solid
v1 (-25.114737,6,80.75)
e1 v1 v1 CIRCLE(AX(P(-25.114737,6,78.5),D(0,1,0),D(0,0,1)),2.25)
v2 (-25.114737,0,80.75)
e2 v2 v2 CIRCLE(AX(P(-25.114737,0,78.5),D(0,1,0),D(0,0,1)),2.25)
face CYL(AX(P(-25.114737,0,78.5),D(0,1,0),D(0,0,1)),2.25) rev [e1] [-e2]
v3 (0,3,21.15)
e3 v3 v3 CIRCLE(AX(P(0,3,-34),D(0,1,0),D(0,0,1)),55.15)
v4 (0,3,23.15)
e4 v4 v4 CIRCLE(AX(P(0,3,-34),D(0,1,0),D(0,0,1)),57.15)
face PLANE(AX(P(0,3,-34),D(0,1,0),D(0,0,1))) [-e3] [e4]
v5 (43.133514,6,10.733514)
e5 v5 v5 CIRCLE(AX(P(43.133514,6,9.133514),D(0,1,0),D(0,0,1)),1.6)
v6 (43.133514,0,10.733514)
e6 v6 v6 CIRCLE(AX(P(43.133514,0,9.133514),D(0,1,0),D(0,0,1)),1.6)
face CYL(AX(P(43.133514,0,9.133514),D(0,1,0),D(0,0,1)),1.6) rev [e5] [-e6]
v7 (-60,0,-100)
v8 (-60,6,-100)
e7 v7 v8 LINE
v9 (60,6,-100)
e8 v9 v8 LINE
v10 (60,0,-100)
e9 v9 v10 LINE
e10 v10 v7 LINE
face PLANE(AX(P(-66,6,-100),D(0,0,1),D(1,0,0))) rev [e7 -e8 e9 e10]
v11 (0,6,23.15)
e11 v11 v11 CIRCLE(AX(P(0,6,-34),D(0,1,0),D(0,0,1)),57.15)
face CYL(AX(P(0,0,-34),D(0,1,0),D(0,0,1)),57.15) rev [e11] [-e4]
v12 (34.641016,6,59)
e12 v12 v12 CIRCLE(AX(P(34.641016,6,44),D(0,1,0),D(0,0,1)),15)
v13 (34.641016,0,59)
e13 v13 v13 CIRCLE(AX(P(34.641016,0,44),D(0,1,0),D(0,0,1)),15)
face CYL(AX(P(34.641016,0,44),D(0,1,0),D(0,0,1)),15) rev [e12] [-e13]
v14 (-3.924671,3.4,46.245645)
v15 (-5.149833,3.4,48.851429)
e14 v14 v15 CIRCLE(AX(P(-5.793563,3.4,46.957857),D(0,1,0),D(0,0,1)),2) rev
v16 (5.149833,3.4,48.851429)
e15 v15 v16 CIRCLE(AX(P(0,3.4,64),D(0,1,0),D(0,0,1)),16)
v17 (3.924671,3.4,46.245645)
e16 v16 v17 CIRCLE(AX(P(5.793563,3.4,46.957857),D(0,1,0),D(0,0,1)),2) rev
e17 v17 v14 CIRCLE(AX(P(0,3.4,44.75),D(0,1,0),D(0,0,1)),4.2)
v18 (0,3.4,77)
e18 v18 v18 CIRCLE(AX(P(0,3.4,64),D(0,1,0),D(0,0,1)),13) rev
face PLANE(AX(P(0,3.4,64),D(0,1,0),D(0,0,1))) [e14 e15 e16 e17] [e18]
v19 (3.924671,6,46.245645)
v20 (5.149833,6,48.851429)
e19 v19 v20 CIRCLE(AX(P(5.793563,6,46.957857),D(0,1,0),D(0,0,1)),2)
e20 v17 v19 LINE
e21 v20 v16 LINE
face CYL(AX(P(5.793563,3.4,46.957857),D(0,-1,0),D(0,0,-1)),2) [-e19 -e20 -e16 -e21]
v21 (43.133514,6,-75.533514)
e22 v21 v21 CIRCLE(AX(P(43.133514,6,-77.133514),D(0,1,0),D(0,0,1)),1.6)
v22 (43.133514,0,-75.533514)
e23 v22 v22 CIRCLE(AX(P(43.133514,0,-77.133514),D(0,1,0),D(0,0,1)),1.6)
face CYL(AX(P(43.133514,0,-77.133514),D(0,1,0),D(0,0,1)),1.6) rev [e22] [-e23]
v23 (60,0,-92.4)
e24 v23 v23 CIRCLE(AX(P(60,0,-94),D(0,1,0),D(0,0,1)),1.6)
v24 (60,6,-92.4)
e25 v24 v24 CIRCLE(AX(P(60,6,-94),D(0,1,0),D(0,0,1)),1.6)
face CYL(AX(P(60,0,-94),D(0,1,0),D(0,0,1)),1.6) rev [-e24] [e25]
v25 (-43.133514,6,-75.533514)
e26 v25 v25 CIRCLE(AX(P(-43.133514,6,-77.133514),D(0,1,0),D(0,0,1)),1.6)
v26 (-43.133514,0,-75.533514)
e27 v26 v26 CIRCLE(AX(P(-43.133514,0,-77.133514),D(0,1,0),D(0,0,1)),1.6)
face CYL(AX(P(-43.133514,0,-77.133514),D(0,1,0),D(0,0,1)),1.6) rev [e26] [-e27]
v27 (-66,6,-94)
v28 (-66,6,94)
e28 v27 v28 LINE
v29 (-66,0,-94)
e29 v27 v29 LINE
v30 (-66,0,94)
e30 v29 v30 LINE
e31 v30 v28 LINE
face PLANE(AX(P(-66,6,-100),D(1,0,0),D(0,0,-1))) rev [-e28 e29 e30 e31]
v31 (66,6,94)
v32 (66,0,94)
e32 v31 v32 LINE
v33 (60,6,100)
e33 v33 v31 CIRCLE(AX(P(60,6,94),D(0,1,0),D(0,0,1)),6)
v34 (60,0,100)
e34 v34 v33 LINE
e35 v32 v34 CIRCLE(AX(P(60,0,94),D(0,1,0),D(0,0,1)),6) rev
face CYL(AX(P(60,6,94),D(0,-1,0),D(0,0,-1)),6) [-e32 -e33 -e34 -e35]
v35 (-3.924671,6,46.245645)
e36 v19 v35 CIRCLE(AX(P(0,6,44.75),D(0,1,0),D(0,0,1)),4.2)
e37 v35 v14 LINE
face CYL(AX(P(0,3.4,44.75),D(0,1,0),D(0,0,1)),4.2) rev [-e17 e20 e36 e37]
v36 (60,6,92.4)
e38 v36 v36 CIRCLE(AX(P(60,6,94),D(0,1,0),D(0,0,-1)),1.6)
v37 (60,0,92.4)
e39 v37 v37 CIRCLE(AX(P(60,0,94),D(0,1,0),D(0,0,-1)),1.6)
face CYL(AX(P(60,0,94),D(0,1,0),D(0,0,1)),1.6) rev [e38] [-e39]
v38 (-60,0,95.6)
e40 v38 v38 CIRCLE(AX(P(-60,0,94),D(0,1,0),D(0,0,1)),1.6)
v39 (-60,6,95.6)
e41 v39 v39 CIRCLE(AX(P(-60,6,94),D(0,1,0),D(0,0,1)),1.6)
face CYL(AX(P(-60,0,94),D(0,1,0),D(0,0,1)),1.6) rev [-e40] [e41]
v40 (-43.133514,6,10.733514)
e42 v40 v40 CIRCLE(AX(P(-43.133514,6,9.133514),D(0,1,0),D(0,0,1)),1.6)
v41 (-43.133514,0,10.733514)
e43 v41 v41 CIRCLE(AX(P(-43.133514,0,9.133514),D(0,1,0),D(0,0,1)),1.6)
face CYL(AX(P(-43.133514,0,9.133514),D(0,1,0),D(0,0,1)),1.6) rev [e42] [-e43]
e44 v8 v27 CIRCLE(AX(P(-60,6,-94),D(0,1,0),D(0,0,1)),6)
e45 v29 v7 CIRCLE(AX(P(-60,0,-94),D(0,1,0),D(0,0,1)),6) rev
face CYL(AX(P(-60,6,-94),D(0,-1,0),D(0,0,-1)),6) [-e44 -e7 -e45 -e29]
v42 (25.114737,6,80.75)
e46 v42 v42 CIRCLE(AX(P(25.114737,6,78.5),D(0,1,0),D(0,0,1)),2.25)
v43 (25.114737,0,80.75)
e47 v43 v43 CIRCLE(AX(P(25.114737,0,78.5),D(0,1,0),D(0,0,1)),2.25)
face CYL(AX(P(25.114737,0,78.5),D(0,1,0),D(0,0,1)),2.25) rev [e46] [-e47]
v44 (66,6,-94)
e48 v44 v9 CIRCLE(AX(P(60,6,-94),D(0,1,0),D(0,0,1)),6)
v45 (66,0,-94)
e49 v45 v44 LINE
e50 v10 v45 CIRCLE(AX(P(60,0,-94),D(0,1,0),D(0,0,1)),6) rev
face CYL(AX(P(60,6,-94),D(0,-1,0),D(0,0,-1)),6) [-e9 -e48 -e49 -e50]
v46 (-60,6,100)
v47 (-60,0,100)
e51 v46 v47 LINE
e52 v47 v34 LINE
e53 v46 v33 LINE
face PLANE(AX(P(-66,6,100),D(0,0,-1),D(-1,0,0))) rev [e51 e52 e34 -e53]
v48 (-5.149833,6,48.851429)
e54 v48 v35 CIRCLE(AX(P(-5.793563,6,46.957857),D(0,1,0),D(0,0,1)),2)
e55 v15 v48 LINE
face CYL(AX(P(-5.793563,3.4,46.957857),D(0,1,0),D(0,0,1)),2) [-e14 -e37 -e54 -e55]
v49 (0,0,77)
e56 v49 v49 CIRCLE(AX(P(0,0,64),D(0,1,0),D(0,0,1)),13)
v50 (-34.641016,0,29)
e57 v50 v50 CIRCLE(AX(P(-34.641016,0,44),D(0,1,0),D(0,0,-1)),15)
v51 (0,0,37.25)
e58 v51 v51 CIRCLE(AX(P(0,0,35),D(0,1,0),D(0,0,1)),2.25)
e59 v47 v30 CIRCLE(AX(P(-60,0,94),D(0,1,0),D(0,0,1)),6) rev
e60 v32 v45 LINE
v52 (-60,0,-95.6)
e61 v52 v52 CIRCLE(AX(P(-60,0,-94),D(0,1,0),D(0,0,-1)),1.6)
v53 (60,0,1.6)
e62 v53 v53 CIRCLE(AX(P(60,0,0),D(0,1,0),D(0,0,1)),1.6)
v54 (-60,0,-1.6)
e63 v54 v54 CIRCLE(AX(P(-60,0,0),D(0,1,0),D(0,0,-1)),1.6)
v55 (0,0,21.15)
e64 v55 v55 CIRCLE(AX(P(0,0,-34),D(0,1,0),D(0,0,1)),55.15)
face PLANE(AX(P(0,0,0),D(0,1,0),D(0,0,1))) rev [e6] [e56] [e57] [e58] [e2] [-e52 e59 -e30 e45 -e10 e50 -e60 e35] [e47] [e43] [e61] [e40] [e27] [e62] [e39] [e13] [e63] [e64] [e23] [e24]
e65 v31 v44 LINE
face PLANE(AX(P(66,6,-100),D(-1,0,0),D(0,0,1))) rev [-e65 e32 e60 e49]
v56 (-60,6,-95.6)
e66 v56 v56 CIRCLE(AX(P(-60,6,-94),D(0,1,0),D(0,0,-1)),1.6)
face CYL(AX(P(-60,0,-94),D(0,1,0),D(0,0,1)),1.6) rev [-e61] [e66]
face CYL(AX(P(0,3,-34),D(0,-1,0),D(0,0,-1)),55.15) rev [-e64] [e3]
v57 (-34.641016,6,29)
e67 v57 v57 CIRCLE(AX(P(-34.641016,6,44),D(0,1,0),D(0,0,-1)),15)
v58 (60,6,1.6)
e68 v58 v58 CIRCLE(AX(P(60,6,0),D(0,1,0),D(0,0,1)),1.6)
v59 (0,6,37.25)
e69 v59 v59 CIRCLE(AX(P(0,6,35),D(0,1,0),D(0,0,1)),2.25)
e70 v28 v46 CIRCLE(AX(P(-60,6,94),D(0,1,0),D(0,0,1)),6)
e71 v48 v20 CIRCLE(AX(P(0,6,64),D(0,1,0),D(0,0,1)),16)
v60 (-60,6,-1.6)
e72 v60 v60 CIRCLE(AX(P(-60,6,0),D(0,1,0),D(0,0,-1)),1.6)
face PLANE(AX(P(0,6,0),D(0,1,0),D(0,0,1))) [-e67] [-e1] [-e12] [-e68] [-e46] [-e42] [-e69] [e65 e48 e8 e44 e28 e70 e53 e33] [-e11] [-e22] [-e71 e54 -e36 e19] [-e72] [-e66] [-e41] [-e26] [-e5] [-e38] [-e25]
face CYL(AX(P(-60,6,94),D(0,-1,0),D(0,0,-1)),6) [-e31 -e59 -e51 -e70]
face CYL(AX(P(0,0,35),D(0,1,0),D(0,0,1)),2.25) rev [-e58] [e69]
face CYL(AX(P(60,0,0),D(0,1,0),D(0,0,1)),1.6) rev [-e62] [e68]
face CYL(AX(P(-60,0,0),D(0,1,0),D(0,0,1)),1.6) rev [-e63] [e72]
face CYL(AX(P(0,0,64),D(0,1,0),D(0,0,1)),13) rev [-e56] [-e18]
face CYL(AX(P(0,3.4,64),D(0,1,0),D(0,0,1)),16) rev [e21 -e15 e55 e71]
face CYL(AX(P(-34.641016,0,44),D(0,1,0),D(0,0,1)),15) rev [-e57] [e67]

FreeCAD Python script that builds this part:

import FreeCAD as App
import Part
import Sketcher

V = App.Vector
Q = App.Units.Quantity


def edges_at(feature, points):
    """Names of the edges that pass closest to the given points."""
    edges = feature.Shape.Edges
    near = lambda p: min(range(len(edges)), key=lambda i: edges[i].distToShape(Part.Vertex(*p))[0])
    return sorted({f"Edge{near(p) + 1}" for p in points})


def add_polygon(sketch, points):
    """Adds a closed chain of lines whose ends are joined by coincident constraints."""
    first, n = sketch.GeometryCount, len(points)
    for a, b in zip(points, points[1:] + points[:1]):
        sketch.addGeometry(Part.LineSegment(App.Vector(*a, 0), App.Vector(*b, 0)), False)
    for i in range(n):
        sketch.addConstraint(Sketcher.Constraint("Coincident", first + i, 2, first + (i + 1) % n, 1))

doc = App.newDocument("Part")
body = doc.addObject("PartDesign::Body", "Body")

# Sketch on XZ plane
sketch1 = body.newObject("Sketcher::SketchObject", "Sketch")
sketch1.AttachmentSupport = (doc.getObject("XZ_Plane"), [""])
sketch1.MapMode = "FlatFace"
add_polygon(sketch1, [(-66, -100), (-66, 100), (66, 100), (66, -100)])  # lines 0-3
sketch1.addConstraint(Sketcher.Constraint("Vertical", 0))
sketch1.addConstraint(Sketcher.Constraint("Horizontal", 1))
sketch1.addConstraint(Sketcher.Constraint("Vertical", 2))
sketch1.addConstraint(Sketcher.Constraint("Horizontal", 3))
sketch1.addConstraint(Sketcher.Constraint("Symmetric", 0, 2, 2, 2, -1, 1))
sketch1.addConstraint(Sketcher.Constraint("DistanceX", 1, 1, 1, 2, Q("132 mm")))
sketch1.addConstraint(Sketcher.Constraint("DistanceY", 0, 1, 0, 2, Q("200 mm")))
pad1 = body.newObject("PartDesign::Pad", "Pad")
pad1.Profile = sketch1
pad1.Length = 6
pad1.Reversed = True

# Sketch on XZ plane
sketch2 = body.newObject("Sketcher::SketchObject", "Sketch001")
sketch2.AttachmentSupport = (doc.getObject("XZ_Plane"), [""])
sketch2.MapMode = "FlatFace"
sketch2.AttachmentOffset = App.Placement(V(0, 0, -6), App.Rotation())
sketch2.addGeometry(Part.Circle(V(0, -34, 0), V(0, 0, 1), 57), False)
sketch2.addConstraint(Sketcher.Constraint("PointOnObject", 0, 3, -2))
sketch2.addConstraint(Sketcher.Constraint("Diameter", 0, Q("114.3 mm")))
sketch2.addConstraint(Sketcher.Constraint("DistanceY", 0, 3, -1, 1, Q("34 mm")))
pocket1 = body.newObject("PartDesign::Pocket", "Pocket")
pocket1.Profile = sketch2
pocket1.Length = 6
pocket1.Reversed = True

# Sketch on XZ plane
sketch3 = body.newObject("Sketcher::SketchObject", "Sketch002")
sketch3.AttachmentSupport = (doc.getObject("XZ_Plane"), [""])
sketch3.MapMode = "FlatFace"
sketch3.AttachmentOffset = App.Placement(V(0, 0, -3), App.Rotation())
sketch3.addGeometry(Part.Circle(V(0, -34, 0), V(0, 0, 1), 57), False)
sketch3.addGeometry(Part.Circle(V(0, -34, 0), V(0, 0, 1), 55), False)
sketch3.addConstraint(Sketcher.Constraint("Coincident", 1, 3, 0, 3))
sketch3.addConstraint(Sketcher.Constraint("PointOnObject", 0, 3, -2))
sketch3.addConstraint(Sketcher.Constraint("Diameter", 0, Q("114.3 mm")))
sketch3.addConstraint(Sketcher.Constraint("Diameter", 1, Q("110.3 mm")))
sketch3.addConstraint(Sketcher.Constraint("DistanceY", 0, 3, -1, 1, Q("34 mm")))
pad2 = body.newObject("PartDesign::Pad", "Pad001")
pad2.Profile = sketch3
pad2.Length = 3

# Sketch on XZ plane
sketch4 = body.newObject("Sketcher::SketchObject", "Sketch003")
sketch4.AttachmentSupport = (doc.getObject("XZ_Plane"), [""])
sketch4.MapMode = "FlatFace"
sketch4.AttachmentOffset = App.Placement(V(0, 0, -6), App.Rotation())
sketch4.addGeometry(Part.Circle(V(43.1, 9.1, 0), V(0, 0, 1), 1.6), False)
sketch4.addGeometry(Part.Circle(V(-43.1, 9.1, 0), V(0, 0, 1), 1.6), False)
sketch4.addGeometry(Part.Circle(V(-43.1, -77.1, 0), V(0, 0, 1), 1.6), False)
sketch4.addGeometry(Part.Circle(V(43.1, -77.1, 0), V(0, 0, 1), 1.6), False)
sketch4.addConstraint(Sketcher.Constraint("Equal", 0, 1))
sketch4.addConstraint(Sketcher.Constraint("Equal", 1, 2))
sketch4.addConstraint(Sketcher.Constraint("Equal", 2, 3))
sketch4.addConstraint(Sketcher.Constraint("Symmetric", 0, 3, 1, 3, -2))
sketch4.addConstraint(Sketcher.Constraint("Symmetric", 2, 3, 3, 3, -2))
sketch4.addConstraint(Sketcher.Constraint("Vertical", 1, 3, 2, 3))
sketch4.addConstraint(Sketcher.Constraint("Diameter", 0, Q("3.2 mm")))
sketch4.addConstraint(Sketcher.Constraint("DistanceX", -1, 1, 0, 3, Q("43.133514 mm")))
sketch4.addConstraint(Sketcher.Constraint("DistanceY", -1, 1, 0, 3, Q("9.133514 mm")))
sketch4.addConstraint(Sketcher.Constraint("DistanceY", 2, 3, -1, 1, Q("77.133514 mm")))
pocket2 = body.newObject("PartDesign::Pocket", "Pocket001")
pocket2.Profile = sketch4
pocket2.Length = 6
pocket2.Reversed = True

# Sketch on XZ plane
sketch5 = body.newObject("Sketcher::SketchObject", "Sketch004")
sketch5.AttachmentSupport = (doc.getObject("XZ_Plane"), [""])
sketch5.MapMode = "FlatFace"
sketch5.AttachmentOffset = App.Placement(V(0, 0, -6), App.Rotation())
sketch5.addGeometry(Part.Circle(V(0, 64, 0), V(0, 0, 1), 13), False)
sketch5.addConstraint(Sketcher.Constraint("PointOnObject", 0, 3, -2))
sketch5.addConstraint(Sketcher.Constraint("Diameter", 0, Q("26 mm")))
sketch5.addConstraint(Sketcher.Constraint("DistanceY", -1, 1, 0, 3, Q("64 mm")))
pocket3 = body.newObject("PartDesign::Pocket", "Pocket002")
pocket3.Profile = sketch5
pocket3.Length = 6
pocket3.Reversed = True

# Sketch on XZ plane
sketch6 = body.newObject("Sketcher::SketchObject", "Sketch005")
sketch6.AttachmentSupport = (doc.getObject("XZ_Plane"), [""])
sketch6.MapMode = "FlatFace"
sketch6.AttachmentOffset = App.Placement(V(0, 0, -6), App.Rotation())
sketch6.addGeometry(Part.Circle(V(0, 64, 0), V(0, 0, 1), 16), False)
sketch6.addConstraint(Sketcher.Constraint("PointOnObject", 0, 3, -2))
sketch6.addConstraint(Sketcher.Constraint("Diameter", 0, Q("32 mm")))
sketch6.addConstraint(Sketcher.Constraint("DistanceY", -1, 1, 0, 3, Q("64 mm")))
pocket4 = body.newObject("PartDesign::Pocket", "Pocket003")
pocket4.Profile = sketch6
pocket4.Length = 2.6
pocket4.Reversed = True

# Sketch on XZ plane
sketch7 = body.newObject("Sketcher::SketchObject", "Sketch006")
sketch7.AttachmentSupport = (doc.getObject("XZ_Plane"), [""])
sketch7.MapMode = "FlatFace"
sketch7.AttachmentOffset = App.Placement(V(0, 0, -6), App.Rotation())
sketch7.addGeometry(Part.Circle(V(0, 44.8, 0), V(0, 0, 1), 4.2), False)
sketch7.addConstraint(Sketcher.Constraint("PointOnObject", 0, 3, -2))
sketch7.addConstraint(Sketcher.Constraint("Diameter", 0, Q("8.4 mm")))
sketch7.addConstraint(Sketcher.Constraint("DistanceY", -1, 1, 0, 3, Q("44.75 mm")))
pocket5 = body.newObject("PartDesign::Pocket", "Pocket004")
pocket5.Profile = sketch7
pocket5.Length = 2.6
pocket5.Reversed = True
doc.recompute()

fillet = body.newObject("PartDesign::Fillet", "Fillet")
fillet.Base = (pocket5, edges_at(pocket5, [(2.418, 4.7, 48.184), (-2.418, 4.7, 48.184)]))
fillet.Radius = 2

# Sketch on XZ plane
sketch8 = body.newObject("Sketcher::SketchObject", "Sketch007")
sketch8.AttachmentSupport = (doc.getObject("XZ_Plane"), [""])
sketch8.MapMode = "FlatFace"
sketch8.AttachmentOffset = App.Placement(V(0, 0, -6), App.Rotation())
sketch8.addGeometry(Part.Circle(V(0, 35, 0), V(0, 0, 1), 2.2), False)
sketch8.addGeometry(Part.Circle(V(25.1, 78.5, 0), V(0, 0, 1), 2.2), False)
sketch8.addGeometry(Part.Circle(V(-25.1, 78.5, 0), V(0, 0, 1), 2.2), False)
sketch8.addConstraint(Sketcher.Constraint("Equal", 0, 1))
sketch8.addConstraint(Sketcher.Constraint("Equal", 1, 2))
sketch8.addConstraint(Sketcher.Constraint("Symmetric", 1, 3, 2, 3, -2))
sketch8.addConstraint(Sketcher.Constraint("PointOnObject", 0, 3, -2))
sketch8.addConstraint(Sketcher.Constraint("Diameter", 0, Q("4.5 mm")))
sketch8.addConstraint(Sketcher.Constraint("DistanceY", -1, 1, 0, 3, Q("35 mm")))
sketch8.addConstraint(Sketcher.Constraint("DistanceY", -1, 1, 1, 3, Q("78.5 mm")))
sketch8.addConstraint(Sketcher.Constraint("DistanceX", -1, 1, 1, 3, Q("25.114737 mm")))
pocket6 = body.newObject("PartDesign::Pocket", "Pocket005")
pocket6.Profile = sketch8
pocket6.Length = 6
pocket6.Reversed = True
doc.recompute()

fillet2 = body.newObject("PartDesign::Fillet", "Fillet001")
fillet2.Base = (pocket6, edges_at(pocket6, [
    (66, 3, 100),
    (-66, 3, 100),
    (-66, 3, -100),
    (66, 3, -100),
]))
fillet2.Radius = 6

# Sketch on XZ plane
sketch9 = body.newObject("Sketcher::SketchObject", "Sketch008")
sketch9.AttachmentSupport = (doc.getObject("XZ_Plane"), [""])
sketch9.MapMode = "FlatFace"
sketch9.AttachmentOffset = App.Placement(V(0, 0, -6), App.Rotation())
sketch9.addGeometry(Part.Circle(V(60, -94, 0), V(0, 0, 1), 1.6), False)
sketch9.addGeometry(Part.Circle(V(-60, -94, 0), V(0, 0, 1), 1.6), False)
sketch9.addGeometry(Part.Circle(V(60, 94, 0), V(0, 0, 1), 1.6), False)
sketch9.addGeometry(Part.Circle(V(-60, 94, 0), V(0, 0, 1), 1.6), False)
sketch9.addGeometry(Part.Circle(V(60, 0, 0), V(0, 0, 1), 1.6), False)
sketch9.addGeometry(Part.Circle(V(-60, 0, 0), V(0, 0, 1), 1.6), False)
sketch9.addConstraint(Sketcher.Constraint("Equal", 0, 1))
sketch9.addConstraint(Sketcher.Constraint("Equal", 1, 2))
sketch9.addConstraint(Sketcher.Constraint("Equal", 2, 3))
sketch9.addConstraint(Sketcher.Constraint("Equal", 3, 4))
sketch9.addConstraint(Sketcher.Constraint("Equal", 4, 5))
sketch9.addConstraint(Sketcher.Constraint("Symmetric", 1, 3, 2, 3, -1, 1))
sketch9.addConstraint(Sketcher.Constraint("Symmetric", 0, 3, 3, 3, -1, 1))
sketch9.addConstraint(Sketcher.Constraint("Symmetric", 4, 3, 5, 3, -1, 1))
sketch9.addConstraint(Sketcher.Constraint("Symmetric", 0, 3, 1, 3, -2))
sketch9.addConstraint(Sketcher.Constraint("PointOnObject", 4, 3, -1))
sketch9.addConstraint(Sketcher.Constraint("Vertical", 2, 3, 4, 3))
sketch9.addConstraint(Sketcher.Constraint("Diameter", 0, Q("3.2 mm")))
sketch9.addConstraint(Sketcher.Constraint("DistanceX", -1, 1, 0, 3, Q("60 mm")))
sketch9.addConstraint(Sketcher.Constraint("DistanceY", 0, 3, -1, 1, Q("94 mm")))
pocket7 = body.newObject("PartDesign::Pocket", "Pocket006")
pocket7.Profile = sketch9
pocket7.Length = 6
pocket7.Reversed = True

# Sketch on XZ plane
sketch10 = body.newObject("Sketcher::SketchObject", "Sketch009")
sketch10.AttachmentSupport = (doc.getObject("XZ_Plane"), [""])
sketch10.MapMode = "FlatFace"
sketch10.AttachmentOffset = App.Placement(V(0, 0, -6), App.Rotation())
sketch10.addGeometry(Part.Circle(V(35, 44, 0), V(0, 0, 1), 15), False)
sketch10.addGeometry(Part.Circle(V(-35, 44, 0), V(0, 0, 1), 15), False)
sketch10.addConstraint(Sketcher.Constraint("Equal", 0, 1))
sketch10.addConstraint(Sketcher.Constraint("Symmetric", 0, 3, 1, 3, -2))
sketch10.addConstraint(Sketcher.Constraint("Diameter", 0, Q("30 mm")))
sketch10.addConstraint(Sketcher.Constraint("DistanceY", -1, 1, 0, 3, Q("44 mm")))
sketch10.addConstraint(Sketcher.Constraint("DistanceX", -1, 1, 0, 3, Q("34.641016 mm")))
pocket8 = body.newObject("PartDesign::Pocket", "Pocket007")
pocket8.Profile = sketch10
pocket8.Length = 6
pocket8.Reversed = True

doc.recompute()
